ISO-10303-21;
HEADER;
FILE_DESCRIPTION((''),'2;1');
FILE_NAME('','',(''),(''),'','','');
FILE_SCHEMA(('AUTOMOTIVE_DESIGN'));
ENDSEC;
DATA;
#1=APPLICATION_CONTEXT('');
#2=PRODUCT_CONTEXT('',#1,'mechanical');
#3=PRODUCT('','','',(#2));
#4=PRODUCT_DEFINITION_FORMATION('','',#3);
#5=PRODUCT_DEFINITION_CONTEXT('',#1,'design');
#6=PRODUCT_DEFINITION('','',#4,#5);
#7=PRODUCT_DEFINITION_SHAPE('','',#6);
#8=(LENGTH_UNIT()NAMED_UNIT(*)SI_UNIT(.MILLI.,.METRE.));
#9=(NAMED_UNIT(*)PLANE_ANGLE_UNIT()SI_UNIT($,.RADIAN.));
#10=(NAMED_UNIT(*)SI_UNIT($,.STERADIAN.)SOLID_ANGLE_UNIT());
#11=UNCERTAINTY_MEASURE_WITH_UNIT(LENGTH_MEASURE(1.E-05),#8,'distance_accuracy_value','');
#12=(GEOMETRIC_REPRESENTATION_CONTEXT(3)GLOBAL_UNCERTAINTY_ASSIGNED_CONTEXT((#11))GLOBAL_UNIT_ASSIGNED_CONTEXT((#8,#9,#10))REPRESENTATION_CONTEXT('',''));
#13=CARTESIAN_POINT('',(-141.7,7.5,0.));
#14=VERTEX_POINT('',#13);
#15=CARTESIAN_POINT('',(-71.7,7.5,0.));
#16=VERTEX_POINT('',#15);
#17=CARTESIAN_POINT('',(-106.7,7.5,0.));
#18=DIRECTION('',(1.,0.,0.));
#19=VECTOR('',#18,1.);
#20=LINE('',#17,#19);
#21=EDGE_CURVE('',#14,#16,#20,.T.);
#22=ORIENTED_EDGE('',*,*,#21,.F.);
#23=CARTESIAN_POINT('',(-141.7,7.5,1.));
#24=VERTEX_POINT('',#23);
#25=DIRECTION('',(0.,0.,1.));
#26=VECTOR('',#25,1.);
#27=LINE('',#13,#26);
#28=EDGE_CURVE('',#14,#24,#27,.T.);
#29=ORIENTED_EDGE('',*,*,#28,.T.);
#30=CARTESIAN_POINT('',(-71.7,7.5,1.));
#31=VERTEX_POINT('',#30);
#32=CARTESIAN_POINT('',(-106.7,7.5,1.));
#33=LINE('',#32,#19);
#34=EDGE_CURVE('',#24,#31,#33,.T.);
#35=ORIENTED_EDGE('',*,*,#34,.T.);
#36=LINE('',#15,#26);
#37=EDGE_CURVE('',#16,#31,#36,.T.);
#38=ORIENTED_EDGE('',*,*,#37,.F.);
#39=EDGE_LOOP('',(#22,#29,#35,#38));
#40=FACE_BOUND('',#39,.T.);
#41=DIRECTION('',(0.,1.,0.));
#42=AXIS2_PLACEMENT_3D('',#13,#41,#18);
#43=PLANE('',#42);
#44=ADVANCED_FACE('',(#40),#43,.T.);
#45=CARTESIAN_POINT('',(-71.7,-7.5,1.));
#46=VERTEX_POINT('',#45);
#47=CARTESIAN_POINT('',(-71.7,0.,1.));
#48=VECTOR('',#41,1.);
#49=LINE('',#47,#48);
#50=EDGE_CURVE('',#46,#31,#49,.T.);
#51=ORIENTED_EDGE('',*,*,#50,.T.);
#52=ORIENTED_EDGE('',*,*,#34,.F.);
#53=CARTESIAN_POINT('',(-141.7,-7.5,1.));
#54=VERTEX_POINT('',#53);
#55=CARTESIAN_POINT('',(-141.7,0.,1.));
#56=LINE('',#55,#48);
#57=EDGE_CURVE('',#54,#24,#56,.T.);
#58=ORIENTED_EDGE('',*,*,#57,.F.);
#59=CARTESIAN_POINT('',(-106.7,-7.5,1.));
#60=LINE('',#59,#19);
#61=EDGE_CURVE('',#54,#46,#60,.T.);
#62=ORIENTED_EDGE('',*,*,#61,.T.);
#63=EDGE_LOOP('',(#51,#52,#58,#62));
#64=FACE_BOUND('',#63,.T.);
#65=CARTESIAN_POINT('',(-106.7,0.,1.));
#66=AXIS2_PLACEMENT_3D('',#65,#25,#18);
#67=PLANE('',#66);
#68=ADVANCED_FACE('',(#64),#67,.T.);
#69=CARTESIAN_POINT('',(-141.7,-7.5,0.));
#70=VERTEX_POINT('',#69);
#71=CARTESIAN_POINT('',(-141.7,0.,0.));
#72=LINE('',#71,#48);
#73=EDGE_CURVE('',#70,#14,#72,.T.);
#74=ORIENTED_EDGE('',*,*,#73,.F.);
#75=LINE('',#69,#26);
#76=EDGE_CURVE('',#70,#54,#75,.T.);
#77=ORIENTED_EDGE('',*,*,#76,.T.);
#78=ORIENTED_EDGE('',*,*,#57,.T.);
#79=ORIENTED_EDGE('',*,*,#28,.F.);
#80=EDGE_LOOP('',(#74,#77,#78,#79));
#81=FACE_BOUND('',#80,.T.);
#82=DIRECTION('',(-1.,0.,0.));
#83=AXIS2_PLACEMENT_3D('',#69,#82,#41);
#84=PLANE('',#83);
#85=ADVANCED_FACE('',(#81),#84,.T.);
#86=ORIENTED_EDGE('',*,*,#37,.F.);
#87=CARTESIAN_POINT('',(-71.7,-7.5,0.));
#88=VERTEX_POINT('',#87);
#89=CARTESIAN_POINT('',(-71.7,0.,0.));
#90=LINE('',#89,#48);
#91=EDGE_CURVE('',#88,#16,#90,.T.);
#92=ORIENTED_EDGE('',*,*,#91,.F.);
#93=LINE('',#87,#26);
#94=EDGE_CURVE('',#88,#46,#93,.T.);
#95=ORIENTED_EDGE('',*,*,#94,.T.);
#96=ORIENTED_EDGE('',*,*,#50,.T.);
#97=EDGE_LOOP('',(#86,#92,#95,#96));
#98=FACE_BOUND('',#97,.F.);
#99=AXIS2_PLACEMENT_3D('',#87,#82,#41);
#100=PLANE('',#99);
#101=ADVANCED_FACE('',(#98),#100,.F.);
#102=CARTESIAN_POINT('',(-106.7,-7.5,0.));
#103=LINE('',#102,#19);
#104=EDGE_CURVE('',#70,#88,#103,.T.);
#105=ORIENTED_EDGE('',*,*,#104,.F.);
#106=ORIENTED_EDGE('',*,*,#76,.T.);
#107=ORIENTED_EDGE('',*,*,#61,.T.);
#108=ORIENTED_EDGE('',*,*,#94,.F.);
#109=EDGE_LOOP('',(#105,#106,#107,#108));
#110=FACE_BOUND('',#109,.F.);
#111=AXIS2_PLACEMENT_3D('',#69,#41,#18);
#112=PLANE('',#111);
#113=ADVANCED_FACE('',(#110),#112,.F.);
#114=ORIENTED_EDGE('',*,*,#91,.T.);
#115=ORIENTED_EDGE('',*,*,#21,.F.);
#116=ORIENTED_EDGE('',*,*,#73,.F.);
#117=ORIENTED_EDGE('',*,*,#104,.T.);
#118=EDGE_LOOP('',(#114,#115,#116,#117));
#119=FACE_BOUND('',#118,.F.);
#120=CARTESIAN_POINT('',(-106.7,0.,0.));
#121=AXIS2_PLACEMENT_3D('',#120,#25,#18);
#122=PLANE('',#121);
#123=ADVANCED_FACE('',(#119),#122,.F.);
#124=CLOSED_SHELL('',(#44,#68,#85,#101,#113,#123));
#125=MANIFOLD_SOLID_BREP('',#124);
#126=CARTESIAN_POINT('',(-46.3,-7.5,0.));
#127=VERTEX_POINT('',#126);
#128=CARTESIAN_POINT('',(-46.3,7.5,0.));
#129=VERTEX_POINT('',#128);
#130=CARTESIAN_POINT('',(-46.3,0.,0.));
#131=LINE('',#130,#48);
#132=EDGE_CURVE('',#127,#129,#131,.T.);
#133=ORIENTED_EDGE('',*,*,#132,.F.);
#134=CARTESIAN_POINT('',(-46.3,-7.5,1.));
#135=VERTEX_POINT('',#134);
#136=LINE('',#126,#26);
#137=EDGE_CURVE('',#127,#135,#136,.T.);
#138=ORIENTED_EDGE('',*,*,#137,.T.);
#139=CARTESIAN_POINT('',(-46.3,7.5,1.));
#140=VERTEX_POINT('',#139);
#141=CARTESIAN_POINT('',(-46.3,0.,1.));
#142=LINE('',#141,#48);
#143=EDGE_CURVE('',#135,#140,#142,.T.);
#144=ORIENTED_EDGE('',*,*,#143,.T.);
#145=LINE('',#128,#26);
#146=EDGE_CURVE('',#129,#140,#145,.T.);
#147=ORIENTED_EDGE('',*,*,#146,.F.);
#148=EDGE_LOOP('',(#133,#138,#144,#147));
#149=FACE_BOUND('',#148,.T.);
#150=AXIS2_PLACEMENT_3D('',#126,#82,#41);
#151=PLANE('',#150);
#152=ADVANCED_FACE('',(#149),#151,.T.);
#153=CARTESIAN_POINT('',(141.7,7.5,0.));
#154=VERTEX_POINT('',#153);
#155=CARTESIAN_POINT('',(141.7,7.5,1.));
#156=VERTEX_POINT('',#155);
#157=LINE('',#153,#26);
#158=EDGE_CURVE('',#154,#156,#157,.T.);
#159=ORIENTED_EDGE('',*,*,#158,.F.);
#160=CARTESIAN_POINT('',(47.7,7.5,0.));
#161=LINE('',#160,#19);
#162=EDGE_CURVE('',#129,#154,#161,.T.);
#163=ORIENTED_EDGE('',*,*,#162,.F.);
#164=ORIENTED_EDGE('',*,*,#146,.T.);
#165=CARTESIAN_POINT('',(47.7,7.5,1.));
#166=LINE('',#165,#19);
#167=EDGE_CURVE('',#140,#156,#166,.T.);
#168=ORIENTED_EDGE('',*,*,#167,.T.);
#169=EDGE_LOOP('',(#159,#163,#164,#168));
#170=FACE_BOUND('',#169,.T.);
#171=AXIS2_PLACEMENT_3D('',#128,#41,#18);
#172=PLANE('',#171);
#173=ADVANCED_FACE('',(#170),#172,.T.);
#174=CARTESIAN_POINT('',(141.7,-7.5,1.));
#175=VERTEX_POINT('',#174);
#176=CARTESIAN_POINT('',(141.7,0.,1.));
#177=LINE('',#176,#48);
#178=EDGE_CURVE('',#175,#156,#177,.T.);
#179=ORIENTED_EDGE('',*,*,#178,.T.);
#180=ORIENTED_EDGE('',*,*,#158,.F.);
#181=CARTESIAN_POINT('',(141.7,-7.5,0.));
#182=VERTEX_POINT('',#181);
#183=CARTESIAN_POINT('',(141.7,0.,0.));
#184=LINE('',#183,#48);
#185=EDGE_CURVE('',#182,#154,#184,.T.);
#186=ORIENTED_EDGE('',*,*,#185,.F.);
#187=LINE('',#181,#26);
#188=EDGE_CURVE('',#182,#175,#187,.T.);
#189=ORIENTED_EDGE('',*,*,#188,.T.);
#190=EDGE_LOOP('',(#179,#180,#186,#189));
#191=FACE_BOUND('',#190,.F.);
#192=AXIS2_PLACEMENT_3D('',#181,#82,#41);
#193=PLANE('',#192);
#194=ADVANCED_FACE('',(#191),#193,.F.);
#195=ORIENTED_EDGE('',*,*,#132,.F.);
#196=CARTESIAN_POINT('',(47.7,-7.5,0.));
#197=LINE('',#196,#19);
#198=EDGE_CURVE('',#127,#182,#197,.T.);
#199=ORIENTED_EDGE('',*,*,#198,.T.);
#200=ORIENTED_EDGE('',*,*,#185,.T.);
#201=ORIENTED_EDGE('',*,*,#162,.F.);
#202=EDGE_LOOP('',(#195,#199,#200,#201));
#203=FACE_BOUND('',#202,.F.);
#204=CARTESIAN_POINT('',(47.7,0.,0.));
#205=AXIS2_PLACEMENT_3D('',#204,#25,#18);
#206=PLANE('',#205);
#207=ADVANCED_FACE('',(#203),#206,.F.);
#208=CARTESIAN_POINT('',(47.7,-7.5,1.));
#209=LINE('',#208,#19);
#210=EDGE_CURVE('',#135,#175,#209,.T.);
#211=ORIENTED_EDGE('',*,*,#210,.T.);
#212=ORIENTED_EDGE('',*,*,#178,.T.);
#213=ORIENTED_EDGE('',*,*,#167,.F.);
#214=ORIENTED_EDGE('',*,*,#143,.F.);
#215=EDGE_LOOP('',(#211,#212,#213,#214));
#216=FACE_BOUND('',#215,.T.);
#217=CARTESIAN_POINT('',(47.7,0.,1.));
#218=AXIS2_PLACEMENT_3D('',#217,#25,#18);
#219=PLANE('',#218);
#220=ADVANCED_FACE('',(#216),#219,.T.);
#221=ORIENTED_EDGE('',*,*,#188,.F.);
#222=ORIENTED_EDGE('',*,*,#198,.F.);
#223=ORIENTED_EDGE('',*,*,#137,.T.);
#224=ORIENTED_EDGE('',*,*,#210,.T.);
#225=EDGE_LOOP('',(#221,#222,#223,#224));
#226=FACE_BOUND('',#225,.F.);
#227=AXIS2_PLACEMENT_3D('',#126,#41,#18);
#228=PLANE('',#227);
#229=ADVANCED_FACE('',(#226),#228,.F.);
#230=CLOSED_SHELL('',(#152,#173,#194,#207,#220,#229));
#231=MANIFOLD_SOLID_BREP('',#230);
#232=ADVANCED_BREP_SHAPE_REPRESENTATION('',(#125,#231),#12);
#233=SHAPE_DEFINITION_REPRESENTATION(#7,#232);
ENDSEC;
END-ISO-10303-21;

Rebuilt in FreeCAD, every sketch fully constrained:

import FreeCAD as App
import Part
import Sketcher

V = App.Vector
Q = App.Units.Quantity


def add_polygon(sketch, points):
    """Adds a closed chain of lines whose ends are joined by coincident constraints."""
    first, n = sketch.GeometryCount, len(points)
    for a, b in zip(points, points[1:] + points[:1]):
        sketch.addGeometry(Part.LineSegment(App.Vector(*a, 0), App.Vector(*b, 0)), False)
    for i in range(n):
        sketch.addConstraint(Sketcher.Constraint("Coincident", first + i, 2, first + (i + 1) % n, 1))

doc = App.newDocument("Part")
params = doc.addObject("Spreadsheet::Sheet", "Params")
for row, (alias, value) in enumerate([
    ("sketch1_width", "70 mm"),
    ("sketch1_width2", "188 mm"),
    ("sketch1_height", "15 mm"),
    ("pad1_length", "1 mm"),
], start=1):
    params.set(f"A{row}", alias)
    params.set(f"B{row}", "=" + value)
    params.setAlias(f"B{row}", alias)

body = doc.addObject("PartDesign::Body", "Body")
body.AllowCompound = True

sketch1 = body.newObject("Sketcher::SketchObject", "Sketch")
sketch1.AttachmentSupport = (doc.getObject("XY_Plane"), [""])
sketch1.MapMode = "FlatFace"
add_polygon(sketch1, [(-141.7, 7.5), (-141.7, -7.5), (-71.7, -7.5), (-71.7, 7.5)])
add_polygon(sketch1, [(-46.3, 7.5), (-46.3, -7.5), (141.7, -7.5), (141.7, 7.5)])
sketch1.addConstraint(Sketcher.Constraint("Vertical", 0))
sketch1.addConstraint(Sketcher.Constraint("Horizontal", 1))
sketch1.addConstraint(Sketcher.Constraint("Vertical", 2))
sketch1.addConstraint(Sketcher.Constraint("Horizontal", 3))
sketch1.addConstraint(Sketcher.Constraint("Vertical", 4))
sketch1.addConstraint(Sketcher.Constraint("Horizontal", 5))
sketch1.addConstraint(Sketcher.Constraint("Vertical", 6))
sketch1.addConstraint(Sketcher.Constraint("Horizontal", 7))
sketch1.addConstraint(Sketcher.Constraint("Symmetric", 3, 2, 5, 2, -1, 1))
sketch1.addConstraint(Sketcher.Constraint("Horizontal", 1, 2, 4, 2))
sketch1.addConstraint(Sketcher.Constraint("Horizontal", 3, 2, 6, 2))
sketch1.addConstraint(Sketcher.Constraint("DistanceX", 1, 1, 1, 2, Q("70 mm")))
sketch1.addConstraint(Sketcher.Constraint("DistanceX", 5, 1, 5, 2, Q("188 mm")))
sketch1.addConstraint(Sketcher.Constraint("DistanceY", 0, 2, 0, 1, Q("15 mm")))
sketch1.addConstraint(Sketcher.Constraint("DistanceX", 0, 2, -1, 1, Q("141.7 mm")))
sketch1.setExpression("Constraints[19]", "Params.sketch1_width")
sketch1.setExpression("Constraints[20]", "Params.sketch1_width2")
sketch1.setExpression("Constraints[21]", "Params.sketch1_height")
pad1 = body.newObject("PartDesign::Pad", "Pad")
pad1.Profile = sketch1
pad1.setExpression("Length", "Params.pad1_length")

doc.recompute()
